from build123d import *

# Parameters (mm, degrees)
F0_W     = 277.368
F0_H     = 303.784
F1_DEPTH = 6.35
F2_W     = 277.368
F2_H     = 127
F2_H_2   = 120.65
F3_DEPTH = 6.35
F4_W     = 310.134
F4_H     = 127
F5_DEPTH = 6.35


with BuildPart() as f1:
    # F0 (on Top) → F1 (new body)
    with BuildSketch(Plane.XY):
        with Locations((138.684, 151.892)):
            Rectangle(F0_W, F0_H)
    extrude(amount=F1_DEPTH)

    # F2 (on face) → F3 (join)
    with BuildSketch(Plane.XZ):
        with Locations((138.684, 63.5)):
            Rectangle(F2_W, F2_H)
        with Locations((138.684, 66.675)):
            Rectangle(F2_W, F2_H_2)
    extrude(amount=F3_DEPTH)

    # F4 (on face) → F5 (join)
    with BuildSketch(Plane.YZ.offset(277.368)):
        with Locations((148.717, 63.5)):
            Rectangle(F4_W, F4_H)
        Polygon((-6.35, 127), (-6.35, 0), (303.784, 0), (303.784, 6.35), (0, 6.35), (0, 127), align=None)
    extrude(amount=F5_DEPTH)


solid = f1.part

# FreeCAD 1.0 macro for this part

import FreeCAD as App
import Part
import Sketcher
from FreeCAD import Vector
Q = App.Units.Quantity


def add_polygon(sketch, points):
    """Adds a closed chain of lines whose ends are joined by coincident constraints."""
    first, n = sketch.GeometryCount, len(points)
    for a, b in zip(points, points[1:] + points[:1]):
        sketch.addGeometry(Part.LineSegment(App.Vector(*a, 0), App.Vector(*b, 0)), False)
    for i in range(n):
        sketch.addConstraint(Sketcher.Constraint("Coincident", first + i, 2, first + (i + 1) % n, 1))

doc = App.newDocument("Part")
body = doc.addObject("PartDesign::Body", "Body")

# Sketch on XY plane
sketch1 = body.newObject("Sketcher::SketchObject", "Sketch")
sketch1.AttachmentSupport = (doc.getObject("XY_Plane"), [""])
sketch1.MapMode = "FlatFace"
add_polygon(sketch1, [(0, 304), (0, 0), (277, 0), (277, 304)])  # lines 0-3
sketch1.addConstraint([
    Sketcher.Constraint("Vertical", 0),
    Sketcher.Constraint("Horizontal", 1),
    Sketcher.Constraint("Vertical", 2),
    Sketcher.Constraint("Horizontal", 3),
    Sketcher.Constraint("Coincident", 0, 2, -1, 1),
    Sketcher.Constraint("DistanceX", 1, 1, 1, 2, Q("10.92 in")),
    Sketcher.Constraint("DistanceY", 0, 2, 0, 1, Q("11.96 in")),
])
pad1 = body.newObject("PartDesign::Pad", "Pad")
pad1.Profile = sketch1
pad1.Length = Q("0.25 in")

# Sketch on XZ plane
sketch2 = body.newObject("Sketcher::SketchObject", "Sketch001")
sketch2.AttachmentSupport = (doc.getObject("XZ_Plane"), [""])
sketch2.MapMode = "FlatFace"
add_polygon(sketch2, [(0, 0), (277, 0), (277, 127), (0, 127)])  # lines 0-3
sketch2.addConstraint([
    Sketcher.Constraint("Horizontal", 0),
    Sketcher.Constraint("Vertical", 1),
    Sketcher.Constraint("Horizontal", 2),
    Sketcher.Constraint("Vertical", 3),
    Sketcher.Constraint("Coincident", 3, 2, -1, 1),
    Sketcher.Constraint("DistanceY", 1, 1, 1, 2, Q("5 in")),
    Sketcher.Constraint("DistanceX", 0, 1, 0, 2, Q("10.92 in")),
])
pad2 = body.newObject("PartDesign::Pad", "Pad001")
pad2.Profile = sketch2
pad2.Length = Q("0.25 in")

# Sketch on YZ plane
sketch3 = body.newObject("Sketcher::SketchObject", "Sketch002")
sketch3.AttachmentSupport = (doc.getObject("YZ_Plane"), [""])
sketch3.MapMode = "FlatFace"
sketch3.AttachmentOffset = App.Placement(Vector(0, 0, 10.92 * 25.4), App.Rotation())
add_polygon(sketch3, [(-6, 127), (-6, 0), (304, 0), (304, 127)])  # lines 0-3
sketch3.addConstraint([
    Sketcher.Constraint("Vertical", 0),
    Sketcher.Constraint("Horizontal", 1),
    Sketcher.Constraint("Vertical", 2),
    Sketcher.Constraint("Horizontal", 3),
    Sketcher.Constraint("PointOnObject", 0, 2, -1),
    Sketcher.Constraint("DistanceY", 0, 2, 0, 1, Q("5 in")),
    Sketcher.Constraint("DistanceX", 1, 1, 1, 2, Q("12.21 in")),
    Sketcher.Constraint("DistanceX", 0, 2, -1, 1, Q("0.25 in")),
])
pad3 = body.newObject("PartDesign::Pad", "Pad002")
pad3.Profile = sketch3
pad3.Length = Q("0.25 in")

doc.recompute()
